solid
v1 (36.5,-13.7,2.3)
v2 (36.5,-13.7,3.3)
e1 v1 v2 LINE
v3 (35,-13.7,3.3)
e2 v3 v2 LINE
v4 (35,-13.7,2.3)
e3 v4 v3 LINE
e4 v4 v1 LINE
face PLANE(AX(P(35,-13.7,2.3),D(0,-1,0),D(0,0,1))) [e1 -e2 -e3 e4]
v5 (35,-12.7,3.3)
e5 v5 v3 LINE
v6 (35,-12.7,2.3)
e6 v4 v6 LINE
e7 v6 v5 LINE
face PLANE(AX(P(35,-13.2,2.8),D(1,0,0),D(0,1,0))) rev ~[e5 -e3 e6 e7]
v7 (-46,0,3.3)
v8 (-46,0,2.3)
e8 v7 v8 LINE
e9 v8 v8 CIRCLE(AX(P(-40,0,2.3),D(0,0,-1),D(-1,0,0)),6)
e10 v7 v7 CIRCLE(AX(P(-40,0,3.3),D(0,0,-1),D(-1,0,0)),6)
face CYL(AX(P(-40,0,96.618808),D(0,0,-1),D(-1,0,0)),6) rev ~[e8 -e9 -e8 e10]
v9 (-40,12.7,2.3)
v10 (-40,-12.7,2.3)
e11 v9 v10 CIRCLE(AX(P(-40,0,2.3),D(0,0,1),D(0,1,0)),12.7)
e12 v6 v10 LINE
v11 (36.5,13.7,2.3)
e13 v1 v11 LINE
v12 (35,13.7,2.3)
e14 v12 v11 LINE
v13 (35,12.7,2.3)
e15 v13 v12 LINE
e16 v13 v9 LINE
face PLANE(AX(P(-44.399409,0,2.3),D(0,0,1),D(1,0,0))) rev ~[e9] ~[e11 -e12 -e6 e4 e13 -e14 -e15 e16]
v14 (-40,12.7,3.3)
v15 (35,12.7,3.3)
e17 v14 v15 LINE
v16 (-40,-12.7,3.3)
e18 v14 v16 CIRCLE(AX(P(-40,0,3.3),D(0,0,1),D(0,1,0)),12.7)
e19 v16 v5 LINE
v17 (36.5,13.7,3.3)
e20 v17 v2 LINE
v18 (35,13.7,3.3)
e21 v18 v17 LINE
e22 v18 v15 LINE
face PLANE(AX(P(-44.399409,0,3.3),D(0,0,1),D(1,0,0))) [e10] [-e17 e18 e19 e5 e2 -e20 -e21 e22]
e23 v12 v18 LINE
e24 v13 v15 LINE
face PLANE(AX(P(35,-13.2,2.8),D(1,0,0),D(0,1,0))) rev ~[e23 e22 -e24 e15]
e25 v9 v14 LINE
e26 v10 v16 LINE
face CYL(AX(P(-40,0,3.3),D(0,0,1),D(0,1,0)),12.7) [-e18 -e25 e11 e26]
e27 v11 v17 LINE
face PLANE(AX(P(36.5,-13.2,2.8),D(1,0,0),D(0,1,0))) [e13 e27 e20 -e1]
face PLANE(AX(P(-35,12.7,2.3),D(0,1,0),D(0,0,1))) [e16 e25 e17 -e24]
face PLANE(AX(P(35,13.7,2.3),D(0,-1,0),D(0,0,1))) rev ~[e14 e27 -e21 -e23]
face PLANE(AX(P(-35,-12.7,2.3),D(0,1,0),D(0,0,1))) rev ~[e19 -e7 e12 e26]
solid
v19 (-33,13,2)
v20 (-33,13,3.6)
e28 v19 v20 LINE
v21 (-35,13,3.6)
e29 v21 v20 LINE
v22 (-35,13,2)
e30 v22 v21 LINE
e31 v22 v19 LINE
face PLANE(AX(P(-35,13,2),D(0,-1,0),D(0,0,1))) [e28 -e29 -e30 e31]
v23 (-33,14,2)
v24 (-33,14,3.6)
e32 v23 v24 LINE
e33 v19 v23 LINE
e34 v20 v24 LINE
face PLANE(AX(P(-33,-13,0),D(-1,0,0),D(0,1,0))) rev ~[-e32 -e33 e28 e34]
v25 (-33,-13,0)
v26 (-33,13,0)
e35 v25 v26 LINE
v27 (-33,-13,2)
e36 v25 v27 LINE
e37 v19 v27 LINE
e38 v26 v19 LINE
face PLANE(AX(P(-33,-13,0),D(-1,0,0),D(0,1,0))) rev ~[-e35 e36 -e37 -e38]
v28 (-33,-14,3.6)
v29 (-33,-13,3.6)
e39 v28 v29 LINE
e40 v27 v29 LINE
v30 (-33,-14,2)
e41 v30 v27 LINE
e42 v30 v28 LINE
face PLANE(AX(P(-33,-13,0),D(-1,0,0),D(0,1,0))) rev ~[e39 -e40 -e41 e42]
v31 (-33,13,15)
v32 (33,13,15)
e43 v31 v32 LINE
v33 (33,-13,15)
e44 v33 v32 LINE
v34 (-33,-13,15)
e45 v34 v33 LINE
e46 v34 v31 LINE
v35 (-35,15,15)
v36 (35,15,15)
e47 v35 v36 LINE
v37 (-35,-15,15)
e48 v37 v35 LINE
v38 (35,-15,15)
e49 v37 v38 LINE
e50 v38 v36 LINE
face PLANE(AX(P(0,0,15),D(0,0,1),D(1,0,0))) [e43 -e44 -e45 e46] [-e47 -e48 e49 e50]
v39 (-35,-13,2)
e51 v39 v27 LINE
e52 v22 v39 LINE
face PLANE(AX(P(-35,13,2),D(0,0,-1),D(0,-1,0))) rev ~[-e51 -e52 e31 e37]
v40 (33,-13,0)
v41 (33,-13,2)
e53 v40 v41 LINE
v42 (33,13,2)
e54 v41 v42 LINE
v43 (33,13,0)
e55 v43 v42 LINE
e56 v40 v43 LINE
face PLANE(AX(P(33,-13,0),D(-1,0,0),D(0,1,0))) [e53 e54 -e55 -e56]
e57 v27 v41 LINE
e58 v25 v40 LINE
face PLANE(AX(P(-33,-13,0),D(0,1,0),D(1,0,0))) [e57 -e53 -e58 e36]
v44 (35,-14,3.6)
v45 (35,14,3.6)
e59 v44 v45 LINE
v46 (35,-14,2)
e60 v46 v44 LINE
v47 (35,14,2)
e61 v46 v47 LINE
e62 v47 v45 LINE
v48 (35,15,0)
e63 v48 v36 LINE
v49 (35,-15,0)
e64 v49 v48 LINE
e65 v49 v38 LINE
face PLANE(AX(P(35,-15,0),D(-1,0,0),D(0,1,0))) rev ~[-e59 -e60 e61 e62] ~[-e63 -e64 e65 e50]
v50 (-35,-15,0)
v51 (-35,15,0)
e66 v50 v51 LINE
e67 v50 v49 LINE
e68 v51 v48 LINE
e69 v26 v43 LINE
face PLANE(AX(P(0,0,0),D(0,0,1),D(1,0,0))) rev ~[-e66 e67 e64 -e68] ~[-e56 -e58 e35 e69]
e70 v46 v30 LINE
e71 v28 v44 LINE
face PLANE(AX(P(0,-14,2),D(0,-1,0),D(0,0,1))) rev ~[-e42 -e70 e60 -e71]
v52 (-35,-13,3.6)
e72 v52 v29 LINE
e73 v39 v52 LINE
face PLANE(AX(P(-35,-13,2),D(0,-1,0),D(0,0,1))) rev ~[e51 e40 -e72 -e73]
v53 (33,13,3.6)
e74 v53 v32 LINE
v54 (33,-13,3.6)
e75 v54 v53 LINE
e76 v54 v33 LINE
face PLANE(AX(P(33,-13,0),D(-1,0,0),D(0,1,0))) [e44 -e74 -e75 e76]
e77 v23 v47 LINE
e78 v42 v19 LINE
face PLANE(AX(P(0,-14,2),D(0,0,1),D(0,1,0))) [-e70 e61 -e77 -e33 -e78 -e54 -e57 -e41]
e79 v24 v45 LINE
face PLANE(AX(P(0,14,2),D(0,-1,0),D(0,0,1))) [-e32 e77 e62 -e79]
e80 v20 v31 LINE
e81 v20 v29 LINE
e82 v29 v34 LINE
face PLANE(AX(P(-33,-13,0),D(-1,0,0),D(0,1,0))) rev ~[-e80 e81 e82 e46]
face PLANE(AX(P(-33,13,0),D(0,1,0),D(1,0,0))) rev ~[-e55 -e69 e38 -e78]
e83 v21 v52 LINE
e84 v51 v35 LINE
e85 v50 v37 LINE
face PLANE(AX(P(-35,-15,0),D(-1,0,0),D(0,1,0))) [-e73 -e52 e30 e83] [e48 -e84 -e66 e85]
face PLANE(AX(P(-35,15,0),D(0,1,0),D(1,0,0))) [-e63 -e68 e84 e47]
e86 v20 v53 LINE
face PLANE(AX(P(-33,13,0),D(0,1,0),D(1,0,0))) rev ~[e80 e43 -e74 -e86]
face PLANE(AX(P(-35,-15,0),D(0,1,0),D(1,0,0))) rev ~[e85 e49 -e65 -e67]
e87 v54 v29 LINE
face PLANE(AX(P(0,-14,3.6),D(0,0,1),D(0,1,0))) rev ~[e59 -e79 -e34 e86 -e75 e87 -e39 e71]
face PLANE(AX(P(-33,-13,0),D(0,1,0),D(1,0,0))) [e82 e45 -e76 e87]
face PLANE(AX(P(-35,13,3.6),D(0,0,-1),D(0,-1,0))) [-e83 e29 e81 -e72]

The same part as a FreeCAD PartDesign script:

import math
import FreeCAD as App
import Part
import Sketcher

V = App.Vector


def add_polygon(sketch, points):
    """Adds a closed chain of lines whose ends are joined by coincident constraints."""
    first, n = sketch.GeometryCount, len(points)
    for a, b in zip(points, points[1:] + points[:1]):
        sketch.addGeometry(Part.LineSegment(App.Vector(*a, 0), App.Vector(*b, 0)), False)
    for i in range(n):
        sketch.addConstraint(Sketcher.Constraint("Coincident", first + i, 2, first + (i + 1) % n, 1))

doc = App.newDocument("Part")
body = doc.addObject("PartDesign::Body", "Body")

sketch1 = doc.addObject("Sketcher::SketchObject", "Sketch")
body.addObject(sketch1)
sketch1.AttachmentSupport = (doc.XY_Plane, [""])
sketch1.MapMode = "FlatFace"
add_polygon(sketch1, [(-35, 15), (-35, -15), (35, -15), (35, 15)])
add_polygon(sketch1, [(33, -13), (-33, -13), (-33, 13), (33, 13)])
sketch1.addConstraint([
    Sketcher.Constraint("Vertical", 0),
    Sketcher.Constraint("Horizontal", 1),
    Sketcher.Constraint("Vertical", 2),
    Sketcher.Constraint("Horizontal", 3),
    Sketcher.Constraint("Horizontal", 4),
    Sketcher.Constraint("Vertical", 5),
    Sketcher.Constraint("Horizontal", 6),
    Sketcher.Constraint("Vertical", 7),
    Sketcher.Constraint("Symmetric", 0, 2, 2, 2, -1, 1),
    Sketcher.Constraint("Symmetric", 4, 2, 6, 2, -1, 1),
    Sketcher.Constraint("DistanceX", 1, 1, 1, 2, 70.0),
    Sketcher.Constraint("DistanceX", 4, 2, 4, 1, 66.0),
    Sketcher.Constraint("DistanceY", 0, 2, 0, 1, 30.0),
    Sketcher.Constraint("DistanceY", 5, 1, 5, 2, 26.0),
])
pad1 = doc.addObject("PartDesign::Pad", "Pad")
body.addObject(pad1)
pad1.Profile = sketch1
pad1.Length = 15

sketch2 = doc.addObject("Sketcher::SketchObject", "Sketch001")
body.addObject(sketch2)
sketch2.AttachmentSupport = (doc.YZ_Plane, [""])
sketch2.MapMode = "FlatFace"
add_polygon(sketch2, [(-14, 3.6), (-14, 2), (14, 2), (14, 3.6)])
sketch2.addConstraint([
    Sketcher.Constraint("Vertical", 0),
    Sketcher.Constraint("Horizontal", 1),
    Sketcher.Constraint("Vertical", 2),
    Sketcher.Constraint("Horizontal", 3),
    Sketcher.Constraint("DistanceX", 1, 1, 1, 2, 28.0),
    Sketcher.Constraint("DistanceY", 0, 2, 0, 1, 1.6),
    Sketcher.Constraint("DistanceX", 0, 2, -1, 1, 14.0),
    Sketcher.Constraint("DistanceY", -1, 1, 0, 2, 2.0),
])
pocket1 = doc.addObject("PartDesign::Pocket", "Pocket")
body.addObject(pocket1)
pocket1.Profile = sketch2
pocket1.Type = "TwoLengths"
pocket1.Length = 33
pocket1.Length2 = 35

sketch3 = doc.addObject("Sketcher::SketchObject", "Sketch002")
body.addObject(sketch3)
sketch3.AttachmentSupport = (doc.YZ_Plane, [""])
sketch3.MapMode = "FlatFace"
sketch3.AttachmentOffset = App.Placement(V(0, 0, -35), App.Rotation())
add_polygon(sketch3, [(13, 3.6), (13, 2), (-13, 2), (-13, 3.6)])
sketch3.addConstraint([
    Sketcher.Constraint("Vertical", 0),
    Sketcher.Constraint("Horizontal", 1),
    Sketcher.Constraint("Vertical", 2),
    Sketcher.Constraint("Horizontal", 3),
    Sketcher.Constraint("DistanceX", 1, 2, 1, 1, 26.0),
    Sketcher.Constraint("DistanceY", 0, 2, 0, 1, 1.6),
    Sketcher.Constraint("DistanceX", -1, 1, 0, 2, 13.0),
    Sketcher.Constraint("DistanceY", -1, 1, 0, 2, 2.0),
])
pocket2 = doc.addObject("PartDesign::Pocket", "Pocket001")
body.addObject(pocket2)
pocket2.Profile = sketch3
pocket2.Type = "ThroughAll"
pocket2.Reversed = True
body2 = doc.addObject("PartDesign::Body", "Body001")

sketch4 = doc.addObject("Sketcher::SketchObject", "Sketch003")
body2.addObject(sketch4)
sketch4.AttachmentSupport = (doc.getObject("YZ_Plane001"), [""])
sketch4.MapMode = "FlatFace"
sketch4.AttachmentOffset = App.Placement(V(0, 0, -35), App.Rotation())
add_polygon(sketch4, [(12.7, 3.3), (12.7, 2.3), (-12.7, 2.3), (-12.7, 3.3)])
sketch4.addConstraint([
    Sketcher.Constraint("Vertical", 0),
    Sketcher.Constraint("Horizontal", 1),
    Sketcher.Constraint("Vertical", 2),
    Sketcher.Constraint("Horizontal", 3),
    Sketcher.Constraint("DistanceY", 0, 2, 0, 1, 1.0),
    Sketcher.Constraint("DistanceX", 1, 2, 1, 1, 25.4),
    Sketcher.Constraint("DistanceX", -1, 1, 0, 2, 12.7),
    Sketcher.Constraint("DistanceY", -1, 1, 0, 2, 2.3),
])
pad2 = doc.addObject("PartDesign::Pad", "Pad001")
body2.addObject(pad2)
pad2.Profile = sketch4
pad2.Type = "TwoLengths"
pad2.Length = 70
pad2.Length2 = 5

sketch5 = doc.addObject("Sketcher::SketchObject", "Sketch004")
body2.addObject(sketch5)
sketch5.AttachmentSupport = (doc.getObject("YZ_Plane001"), [""])
sketch5.MapMode = "FlatFace"
sketch5.AttachmentOffset = App.Placement(V(0, 0, 35), App.Rotation())
add_polygon(sketch5, [(-13.7, 3.3), (-13.7, 2.3), (13.7, 2.3), (13.7, 3.3)])
sketch5.addConstraint([
    Sketcher.Constraint("Vertical", 0),
    Sketcher.Constraint("Horizontal", 1),
    Sketcher.Constraint("Vertical", 2),
    Sketcher.Constraint("Horizontal", 3),
    Sketcher.Constraint("DistanceY", 0, 2, 0, 1, 1.0),
    Sketcher.Constraint("DistanceX", 1, 1, 1, 2, 27.4),
    Sketcher.Constraint("DistanceX", 0, 2, -1, 1, 13.7),
    Sketcher.Constraint("DistanceY", -1, 1, 0, 2, 2.3),
])
pad3 = doc.addObject("PartDesign::Pad", "Pad002")
body2.addObject(pad3)
pad3.Profile = sketch5
pad3.Length = 1.5

sketch6 = doc.addObject("Sketcher::SketchObject", "Sketch005")
body2.addObject(sketch6)
sketch6.AttachmentSupport = (doc.getObject("XY_Plane001"), [""])
sketch6.MapMode = "FlatFace"
sketch6.AttachmentOffset = App.Placement(V(0, 0, 3.3), App.Rotation())
sketch6.addGeometry([
    Part.LineSegment(V(-40, -13, 0), V(-40, 13, 0)),
    Part.ArcOfCircle(Part.Circle(V(-40, 0, 0), V(0, 0, 1), 13), math.radians(90), math.radians(270)),
], False)
sketch6.addConstraint([
    Sketcher.Constraint("Coincident", 0, 1, 1, 2),
    Sketcher.Constraint("Coincident", 1, 1, 0, 2),
    Sketcher.Constraint("Vertical", 0),
    Sketcher.Constraint("PointOnObject", 1, 3, -1),
    Sketcher.Constraint("Vertical", 1, 3, 0, 1),
    Sketcher.Constraint("Radius", 1, 12.7),
    Sketcher.Constraint("DistanceX", 1, 3, -1, 1, 40.0),
])
pad4 = doc.addObject("PartDesign::Pad", "Pad003")
body2.addObject(pad4)
pad4.Profile = sketch6
pad4.Length = 1
pad4.Reversed = True

sketch7 = doc.addObject("Sketcher::SketchObject", "Sketch006")
body2.addObject(sketch7)
sketch7.AttachmentSupport = (doc.getObject("XY_Plane001"), [""])
sketch7.MapMode = "FlatFace"
sketch7.AttachmentOffset = App.Placement(V(0, 0, 3.3), App.Rotation())
sketch7.addGeometry(Part.Circle(V(-40, 0, 0), V(0, 0, 1), 6), False)
sketch7.addConstraint([
    Sketcher.Constraint("PointOnObject", 0, 3, -1),
    Sketcher.Constraint("Diameter", 0, 12.0),
    Sketcher.Constraint("DistanceX", 0, 3, -1, 1, 40.0),
])
doc.recompute()
hole = doc.addObject("PartDesign::Hole", "Hole")
body2.addObject(hole)
hole.Profile = sketch7
hole.ThreadType = "None"
hole.Diameter = 12
hole.DepthType = "ThroughAll"

doc.recompute()
